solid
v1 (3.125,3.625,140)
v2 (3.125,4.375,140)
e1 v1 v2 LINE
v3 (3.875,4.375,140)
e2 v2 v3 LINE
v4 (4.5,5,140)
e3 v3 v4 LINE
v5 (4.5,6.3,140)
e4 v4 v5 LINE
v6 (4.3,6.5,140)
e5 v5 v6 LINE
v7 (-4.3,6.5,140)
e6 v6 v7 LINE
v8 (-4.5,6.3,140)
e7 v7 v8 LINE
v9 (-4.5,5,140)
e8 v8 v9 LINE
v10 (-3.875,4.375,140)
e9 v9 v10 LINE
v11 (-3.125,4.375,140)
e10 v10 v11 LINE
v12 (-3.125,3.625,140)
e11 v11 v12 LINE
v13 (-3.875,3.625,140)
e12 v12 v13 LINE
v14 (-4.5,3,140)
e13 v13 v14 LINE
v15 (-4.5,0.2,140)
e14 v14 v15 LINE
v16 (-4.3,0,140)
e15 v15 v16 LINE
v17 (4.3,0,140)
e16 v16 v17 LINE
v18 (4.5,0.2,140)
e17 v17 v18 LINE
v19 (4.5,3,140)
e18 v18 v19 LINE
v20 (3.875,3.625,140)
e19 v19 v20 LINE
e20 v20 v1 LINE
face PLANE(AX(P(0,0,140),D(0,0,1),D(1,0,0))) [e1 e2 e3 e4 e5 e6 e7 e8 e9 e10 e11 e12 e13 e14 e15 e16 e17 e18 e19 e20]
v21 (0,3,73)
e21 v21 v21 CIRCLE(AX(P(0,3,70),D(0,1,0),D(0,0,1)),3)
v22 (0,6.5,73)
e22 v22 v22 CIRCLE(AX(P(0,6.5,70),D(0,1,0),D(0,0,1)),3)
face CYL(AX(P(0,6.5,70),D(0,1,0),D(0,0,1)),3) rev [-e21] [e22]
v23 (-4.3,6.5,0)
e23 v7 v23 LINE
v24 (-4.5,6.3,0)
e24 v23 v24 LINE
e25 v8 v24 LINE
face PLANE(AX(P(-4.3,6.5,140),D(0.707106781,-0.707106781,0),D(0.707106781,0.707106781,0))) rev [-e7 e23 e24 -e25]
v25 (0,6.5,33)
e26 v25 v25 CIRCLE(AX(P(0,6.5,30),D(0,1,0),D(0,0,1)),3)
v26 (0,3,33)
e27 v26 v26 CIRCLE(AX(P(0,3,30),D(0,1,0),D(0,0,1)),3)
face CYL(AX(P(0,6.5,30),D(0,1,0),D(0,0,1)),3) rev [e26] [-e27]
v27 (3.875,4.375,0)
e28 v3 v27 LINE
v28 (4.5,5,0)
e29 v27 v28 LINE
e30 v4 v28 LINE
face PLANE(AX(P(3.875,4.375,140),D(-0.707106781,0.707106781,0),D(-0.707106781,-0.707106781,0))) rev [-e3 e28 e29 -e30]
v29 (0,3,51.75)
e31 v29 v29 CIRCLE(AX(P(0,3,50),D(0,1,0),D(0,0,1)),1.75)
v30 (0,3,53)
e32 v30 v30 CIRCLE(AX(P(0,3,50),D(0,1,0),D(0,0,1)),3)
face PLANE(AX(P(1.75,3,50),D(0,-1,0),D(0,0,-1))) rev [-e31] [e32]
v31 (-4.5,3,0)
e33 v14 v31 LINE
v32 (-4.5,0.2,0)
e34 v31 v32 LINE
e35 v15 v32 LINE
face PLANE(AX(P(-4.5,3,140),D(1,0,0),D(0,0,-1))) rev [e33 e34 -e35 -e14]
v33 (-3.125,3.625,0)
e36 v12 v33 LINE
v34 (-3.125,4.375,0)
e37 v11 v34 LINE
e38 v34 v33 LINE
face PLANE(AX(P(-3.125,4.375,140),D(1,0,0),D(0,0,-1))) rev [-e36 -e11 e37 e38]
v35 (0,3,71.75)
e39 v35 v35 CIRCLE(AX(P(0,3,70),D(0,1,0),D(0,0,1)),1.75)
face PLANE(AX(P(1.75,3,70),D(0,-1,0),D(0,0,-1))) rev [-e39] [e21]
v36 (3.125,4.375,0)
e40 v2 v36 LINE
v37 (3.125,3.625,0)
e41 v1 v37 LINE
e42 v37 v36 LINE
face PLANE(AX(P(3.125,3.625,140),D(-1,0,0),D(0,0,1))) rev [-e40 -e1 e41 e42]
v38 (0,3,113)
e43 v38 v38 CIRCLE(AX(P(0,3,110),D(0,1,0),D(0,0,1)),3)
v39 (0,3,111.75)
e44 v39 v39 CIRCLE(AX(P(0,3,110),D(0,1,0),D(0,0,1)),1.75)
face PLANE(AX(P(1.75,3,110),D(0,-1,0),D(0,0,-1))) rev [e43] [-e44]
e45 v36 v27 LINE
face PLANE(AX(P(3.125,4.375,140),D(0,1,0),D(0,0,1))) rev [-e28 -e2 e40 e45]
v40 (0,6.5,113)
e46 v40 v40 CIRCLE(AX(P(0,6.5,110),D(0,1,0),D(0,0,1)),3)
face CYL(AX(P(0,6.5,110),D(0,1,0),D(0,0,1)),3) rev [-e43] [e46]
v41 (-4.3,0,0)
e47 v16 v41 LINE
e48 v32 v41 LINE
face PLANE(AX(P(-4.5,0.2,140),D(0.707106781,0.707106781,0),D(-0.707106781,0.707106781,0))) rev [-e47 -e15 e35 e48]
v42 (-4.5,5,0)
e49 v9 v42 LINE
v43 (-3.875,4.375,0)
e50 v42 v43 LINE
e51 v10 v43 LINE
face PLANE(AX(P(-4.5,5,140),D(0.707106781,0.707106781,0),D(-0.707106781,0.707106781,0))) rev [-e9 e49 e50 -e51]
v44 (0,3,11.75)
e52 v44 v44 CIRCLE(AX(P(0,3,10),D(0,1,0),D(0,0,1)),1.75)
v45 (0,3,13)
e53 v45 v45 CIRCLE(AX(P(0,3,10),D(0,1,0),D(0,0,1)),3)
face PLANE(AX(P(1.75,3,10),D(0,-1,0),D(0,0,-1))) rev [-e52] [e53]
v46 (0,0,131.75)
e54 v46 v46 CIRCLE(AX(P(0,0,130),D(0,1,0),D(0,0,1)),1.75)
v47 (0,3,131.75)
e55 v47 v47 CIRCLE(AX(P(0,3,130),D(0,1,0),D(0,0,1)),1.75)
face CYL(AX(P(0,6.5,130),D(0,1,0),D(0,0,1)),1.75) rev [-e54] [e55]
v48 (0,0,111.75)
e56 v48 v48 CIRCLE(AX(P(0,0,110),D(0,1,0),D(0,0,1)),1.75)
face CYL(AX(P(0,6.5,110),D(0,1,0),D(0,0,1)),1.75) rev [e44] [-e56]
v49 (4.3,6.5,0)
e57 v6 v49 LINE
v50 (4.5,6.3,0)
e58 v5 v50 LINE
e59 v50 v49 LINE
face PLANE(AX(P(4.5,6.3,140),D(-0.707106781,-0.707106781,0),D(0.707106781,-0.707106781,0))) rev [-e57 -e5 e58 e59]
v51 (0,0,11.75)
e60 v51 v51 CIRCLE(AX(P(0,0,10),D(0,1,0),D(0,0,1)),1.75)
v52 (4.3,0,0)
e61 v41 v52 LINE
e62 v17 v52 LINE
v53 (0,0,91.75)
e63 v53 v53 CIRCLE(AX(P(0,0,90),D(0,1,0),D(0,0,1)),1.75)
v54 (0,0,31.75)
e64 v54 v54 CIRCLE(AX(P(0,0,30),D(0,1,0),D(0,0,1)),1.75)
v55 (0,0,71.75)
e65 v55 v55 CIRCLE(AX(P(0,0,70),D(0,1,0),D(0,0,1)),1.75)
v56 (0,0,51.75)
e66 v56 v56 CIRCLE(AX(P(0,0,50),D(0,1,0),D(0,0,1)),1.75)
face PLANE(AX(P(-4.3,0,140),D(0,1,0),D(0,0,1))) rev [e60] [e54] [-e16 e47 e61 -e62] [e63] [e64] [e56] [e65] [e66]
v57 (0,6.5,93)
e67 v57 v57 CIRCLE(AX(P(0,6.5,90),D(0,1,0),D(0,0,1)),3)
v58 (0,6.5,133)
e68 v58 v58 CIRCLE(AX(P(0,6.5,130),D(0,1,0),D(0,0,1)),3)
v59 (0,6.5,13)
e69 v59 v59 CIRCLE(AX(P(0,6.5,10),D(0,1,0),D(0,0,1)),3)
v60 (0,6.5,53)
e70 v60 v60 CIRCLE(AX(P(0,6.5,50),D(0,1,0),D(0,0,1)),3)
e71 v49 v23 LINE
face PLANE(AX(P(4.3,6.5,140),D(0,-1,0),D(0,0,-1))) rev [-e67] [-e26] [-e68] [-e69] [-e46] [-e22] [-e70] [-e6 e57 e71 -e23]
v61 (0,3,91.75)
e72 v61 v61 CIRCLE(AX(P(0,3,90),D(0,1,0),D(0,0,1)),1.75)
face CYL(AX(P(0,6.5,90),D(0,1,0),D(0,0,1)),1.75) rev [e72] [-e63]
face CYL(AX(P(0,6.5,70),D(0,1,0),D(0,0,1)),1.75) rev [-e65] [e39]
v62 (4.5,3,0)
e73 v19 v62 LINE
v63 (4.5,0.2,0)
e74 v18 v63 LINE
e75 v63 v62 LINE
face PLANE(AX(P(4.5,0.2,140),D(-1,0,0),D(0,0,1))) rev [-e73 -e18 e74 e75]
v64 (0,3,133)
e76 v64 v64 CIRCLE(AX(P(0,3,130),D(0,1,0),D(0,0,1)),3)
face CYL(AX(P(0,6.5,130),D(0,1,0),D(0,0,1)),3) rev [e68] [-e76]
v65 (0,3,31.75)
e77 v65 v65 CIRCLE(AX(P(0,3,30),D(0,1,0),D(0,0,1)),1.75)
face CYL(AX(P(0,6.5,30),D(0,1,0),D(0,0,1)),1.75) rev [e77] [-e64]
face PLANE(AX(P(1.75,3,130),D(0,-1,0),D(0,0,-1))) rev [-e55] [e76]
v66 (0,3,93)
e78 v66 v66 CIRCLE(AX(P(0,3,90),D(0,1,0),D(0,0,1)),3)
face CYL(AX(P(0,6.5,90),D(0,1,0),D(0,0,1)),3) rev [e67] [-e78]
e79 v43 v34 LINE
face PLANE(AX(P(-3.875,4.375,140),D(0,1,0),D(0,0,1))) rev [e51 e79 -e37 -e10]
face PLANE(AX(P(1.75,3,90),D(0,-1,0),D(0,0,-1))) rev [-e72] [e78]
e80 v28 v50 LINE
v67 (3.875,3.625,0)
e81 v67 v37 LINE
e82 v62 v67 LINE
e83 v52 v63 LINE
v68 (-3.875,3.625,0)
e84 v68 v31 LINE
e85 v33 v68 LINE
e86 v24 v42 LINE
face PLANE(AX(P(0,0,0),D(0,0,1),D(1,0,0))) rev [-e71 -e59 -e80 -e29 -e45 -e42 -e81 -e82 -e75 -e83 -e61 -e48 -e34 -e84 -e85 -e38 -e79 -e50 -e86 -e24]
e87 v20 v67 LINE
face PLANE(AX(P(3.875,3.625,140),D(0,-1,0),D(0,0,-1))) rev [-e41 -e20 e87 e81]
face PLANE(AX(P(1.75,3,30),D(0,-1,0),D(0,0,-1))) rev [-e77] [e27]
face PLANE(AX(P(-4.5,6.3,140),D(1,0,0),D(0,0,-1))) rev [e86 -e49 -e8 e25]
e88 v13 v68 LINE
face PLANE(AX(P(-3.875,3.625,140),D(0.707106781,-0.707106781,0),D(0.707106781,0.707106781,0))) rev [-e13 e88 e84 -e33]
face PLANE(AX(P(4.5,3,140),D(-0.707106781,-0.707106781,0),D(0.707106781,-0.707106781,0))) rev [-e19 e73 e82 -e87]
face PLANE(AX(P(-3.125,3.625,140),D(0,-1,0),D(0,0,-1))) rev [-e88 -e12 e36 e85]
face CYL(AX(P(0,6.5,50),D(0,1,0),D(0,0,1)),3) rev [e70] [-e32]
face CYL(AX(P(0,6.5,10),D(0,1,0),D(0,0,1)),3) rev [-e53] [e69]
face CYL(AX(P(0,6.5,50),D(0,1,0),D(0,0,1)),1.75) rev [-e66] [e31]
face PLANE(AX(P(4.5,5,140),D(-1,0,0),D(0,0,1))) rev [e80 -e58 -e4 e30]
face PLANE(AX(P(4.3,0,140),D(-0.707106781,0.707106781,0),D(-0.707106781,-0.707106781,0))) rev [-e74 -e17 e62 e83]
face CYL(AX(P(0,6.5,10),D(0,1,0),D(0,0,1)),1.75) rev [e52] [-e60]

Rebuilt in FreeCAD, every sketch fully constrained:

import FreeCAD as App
import Part
import Sketcher

V = App.Vector

doc = App.newDocument("Part")
params = doc.addObject("Spreadsheet::Sheet", "Params")
for row, (alias, value) in enumerate([
    ("sketch1_width", "8.6 mm"),
    ("sketch1_height", "2.8 mm"),
    ("sketch1_height2", "1.3 mm"),
    ("sketch1_width2", "0.75 mm"),
    ("pad1_length", "140 mm"),
    ("sketch2_diameter", "3.5 mm"),
    ("hole_diameter", "3.5 mm"),
    ("hole_cbore_diameter", "6 mm"),
    ("hole_cbore_depth", "3.5 mm"),
    ("linearpattern_pitch", "20 mm"),
], start=1):
    params.set(f"A{row}", alias)
    params.set(f"B{row}", "=" + value)
    params.setAlias(f"B{row}", alias)

body = doc.addObject("PartDesign::Body", "Body")

# Sketch on XY plane
sketch1 = body.newObject("Sketcher::SketchObject", "Sketch")
sketch1.AttachmentSupport = (doc.getObject("XY_Plane"), [""])
sketch1.MapMode = "FlatFace"
sketch1.addGeometry([
    Part.LineSegment(V(4.3, 0, 0), V(4.5, 0.2, 0)),  # 0
    Part.LineSegment(V(4.5, 0.2, 0), V(4.5, 3, 0)),  # 1
    Part.LineSegment(V(4.5, 3, 0), V(3.88, 3.62, 0)),  # 2
    Part.LineSegment(V(3.88, 3.62, 0), V(3.12, 3.62, 0)),  # 3
    Part.LineSegment(V(3.12, 3.62, 0), V(3.12, 4.38, 0)),  # 4
    Part.LineSegment(V(3.12, 4.38, 0), V(3.88, 4.38, 0)),  # 5
    Part.LineSegment(V(3.88, 4.38, 0), V(4.5, 5, 0)),  # 6
    Part.LineSegment(V(4.5, 5, 0), V(4.5, 6.3, 0)),  # 7
    Part.LineSegment(V(4.5, 6.3, 0), V(4.3, 6.5, 0)),  # 8
    Part.LineSegment(V(4.3, 6.5, 0), V(-4.3, 6.5, 0)),  # 9
    Part.LineSegment(V(-4.3, 6.5, 0), V(-4.5, 6.3, 0)),  # 10
    Part.LineSegment(V(-4.5, 6.3, 0), V(-4.5, 5, 0)),  # 11
    Part.LineSegment(V(-4.5, 5, 0), V(-3.88, 4.38, 0)),  # 12
    Part.LineSegment(V(-3.88, 4.38, 0), V(-3.12, 4.38, 0)),  # 13
    Part.LineSegment(V(-3.12, 4.38, 0), V(-3.12, 3.62, 0)),  # 14
    Part.LineSegment(V(-3.12, 3.62, 0), V(-3.88, 3.62, 0)),  # 15
    Part.LineSegment(V(-3.88, 3.62, 0), V(-4.5, 3, 0)),  # 16
    Part.LineSegment(V(-4.5, 3, 0), V(-4.5, 0.2, 0)),  # 17
    Part.LineSegment(V(-4.5, 0.2, 0), V(-4.3, 0, 0)),  # 18
    Part.LineSegment(V(-4.3, 0, 0), V(4.3, 0, 0)),  # 19
], False)
sketch1.addConstraint([
    Sketcher.Constraint("Coincident", 0, 2, 1, 1),
    Sketcher.Constraint("Coincident", 1, 2, 2, 1),
    Sketcher.Constraint("Coincident", 2, 2, 3, 1),
    Sketcher.Constraint("Coincident", 3, 2, 4, 1),
    Sketcher.Constraint("Coincident", 4, 2, 5, 1),
    Sketcher.Constraint("Coincident", 5, 2, 6, 1),
    Sketcher.Constraint("Coincident", 6, 2, 7, 1),
    Sketcher.Constraint("Coincident", 7, 2, 8, 1),
    Sketcher.Constraint("Coincident", 8, 2, 9, 1),
    Sketcher.Constraint("Coincident", 9, 2, 10, 1),
    Sketcher.Constraint("Coincident", 10, 2, 11, 1),
    Sketcher.Constraint("Coincident", 11, 2, 12, 1),
    Sketcher.Constraint("Coincident", 12, 2, 13, 1),
    Sketcher.Constraint("Coincident", 13, 2, 14, 1),
    Sketcher.Constraint("Coincident", 14, 2, 15, 1),
    Sketcher.Constraint("Coincident", 15, 2, 16, 1),
    Sketcher.Constraint("Coincident", 16, 2, 17, 1),
    Sketcher.Constraint("Coincident", 17, 2, 18, 1),
    Sketcher.Constraint("Coincident", 18, 2, 19, 1),
    Sketcher.Constraint("Coincident", 19, 2, 0, 1),
    Sketcher.Constraint("Vertical", 1),
    Sketcher.Constraint("Horizontal", 3),
    Sketcher.Constraint("Vertical", 4),
    Sketcher.Constraint("Horizontal", 5),
    Sketcher.Constraint("Vertical", 7),
    Sketcher.Constraint("Horizontal", 9),
    Sketcher.Constraint("Vertical", 11),
    Sketcher.Constraint("Horizontal", 13),
    Sketcher.Constraint("Vertical", 14),
    Sketcher.Constraint("Horizontal", 15),
    Sketcher.Constraint("Vertical", 17),
    Sketcher.Constraint("Horizontal", 19),
    Sketcher.Constraint("Symmetric", 18, 2, 19, 2, -1, 1),
    Sketcher.Constraint("Symmetric", 7, 2, 10, 2, -2),
    Sketcher.Constraint("Symmetric", 5, 2, 12, 2, -2),
    Sketcher.Constraint("Symmetric", 3, 2, 14, 2, -2),
    Sketcher.Constraint("Symmetric", 1, 2, 16, 2, -2),
    Sketcher.Constraint("Perpendicular", 0, 2),
    Sketcher.Constraint("Perpendicular", 2, 6),
    Sketcher.Constraint("Perpendicular", 6, 8),
    Sketcher.Constraint("Perpendicular", 8, 10),
    Sketcher.Constraint("Perpendicular", 10, 12),
    Sketcher.Constraint("Perpendicular", 12, 16),
    Sketcher.Constraint("Perpendicular", 16, 18),
    Sketcher.Constraint("Horizontal", 6, 2, 11, 2),
    Sketcher.Constraint("Vertical", 2, 2, 5, 2),
    Sketcher.Constraint("Vertical", 1, 2, 6, 2),
    Sketcher.Constraint("Vertical", 9, 2, 18, 2),
    Sketcher.Constraint("Equal", 15, 4),
    Sketcher.Constraint("DistanceX", 9, 2, 9, 1, 8.6),
    Sketcher.Constraint("DistanceY", 1, 1, 1, 2, 2.8),
    Sketcher.Constraint("DistanceY", 7, 1, 7, 2, 1.3),
    Sketcher.Constraint("DistanceY", -1, 1, 1, 2, 3.0),
    Sketcher.Constraint("DistanceY", -1, 1, 6, 2, 5.0),
    Sketcher.Constraint("DistanceX", 3, 2, 3, 1, 0.75),
])
sketch1.setExpression("Constraints[49]", "Params.sketch1_width")
sketch1.setExpression("Constraints[50]", "Params.sketch1_height")
sketch1.setExpression("Constraints[51]", "Params.sketch1_height2")
sketch1.setExpression("Constraints[54]", "Params.sketch1_width2")
pad1 = body.newObject("PartDesign::Pad", "Pad")
pad1.Profile = sketch1
pad1.setExpression("Length", "Params.pad1_length")

# Sketch on XZ plane
sketch2 = body.newObject("Sketcher::SketchObject", "Sketch001")
sketch2.AttachmentSupport = (doc.getObject("XZ_Plane"), [""])
sketch2.MapMode = "FlatFace"
sketch2.AttachmentOffset = App.Placement(V(0, 0, -6.5), App.Rotation())
sketch2.addGeometry(Part.Circle(V(0, 10, 0), V(0, 0, 1), 1.8), False)
sketch2.addConstraint([
    Sketcher.Constraint("PointOnObject", 0, 3, -2),
    Sketcher.Constraint("Diameter", 0, 3.5),
    Sketcher.Constraint("DistanceY", -1, 1, 0, 3, 10.0),
])
sketch2.setExpression("Constraints[1]", "Params.sketch2_diameter")
doc.recompute()
hole = body.newObject("PartDesign::Hole", "Hole")
hole.Profile = sketch2
hole.ThreadType = "None"
hole.setExpression("Diameter", "Params.hole_diameter")
hole.DepthType = "ThroughAll"
hole.HoleCutType = "Counterbore"
hole.setExpression("HoleCutDiameter", "Params.hole_cbore_diameter")
hole.setExpression("HoleCutDepth", "Params.hole_cbore_depth")
hole.Reversed = True
doc.recompute()

linearpattern = body.newObject("PartDesign::LinearPattern", "LinearPattern")
linearpattern.Originals = [hole]
linearpattern.Direction = (doc.getObject("Z_Axis"), [""])
linearpattern.Mode = "offset"
linearpattern.setExpression("Offset", "Params.linearpattern_pitch")
linearpattern.Occurrences = 7
body.Tip = linearpattern

doc.recompute()
